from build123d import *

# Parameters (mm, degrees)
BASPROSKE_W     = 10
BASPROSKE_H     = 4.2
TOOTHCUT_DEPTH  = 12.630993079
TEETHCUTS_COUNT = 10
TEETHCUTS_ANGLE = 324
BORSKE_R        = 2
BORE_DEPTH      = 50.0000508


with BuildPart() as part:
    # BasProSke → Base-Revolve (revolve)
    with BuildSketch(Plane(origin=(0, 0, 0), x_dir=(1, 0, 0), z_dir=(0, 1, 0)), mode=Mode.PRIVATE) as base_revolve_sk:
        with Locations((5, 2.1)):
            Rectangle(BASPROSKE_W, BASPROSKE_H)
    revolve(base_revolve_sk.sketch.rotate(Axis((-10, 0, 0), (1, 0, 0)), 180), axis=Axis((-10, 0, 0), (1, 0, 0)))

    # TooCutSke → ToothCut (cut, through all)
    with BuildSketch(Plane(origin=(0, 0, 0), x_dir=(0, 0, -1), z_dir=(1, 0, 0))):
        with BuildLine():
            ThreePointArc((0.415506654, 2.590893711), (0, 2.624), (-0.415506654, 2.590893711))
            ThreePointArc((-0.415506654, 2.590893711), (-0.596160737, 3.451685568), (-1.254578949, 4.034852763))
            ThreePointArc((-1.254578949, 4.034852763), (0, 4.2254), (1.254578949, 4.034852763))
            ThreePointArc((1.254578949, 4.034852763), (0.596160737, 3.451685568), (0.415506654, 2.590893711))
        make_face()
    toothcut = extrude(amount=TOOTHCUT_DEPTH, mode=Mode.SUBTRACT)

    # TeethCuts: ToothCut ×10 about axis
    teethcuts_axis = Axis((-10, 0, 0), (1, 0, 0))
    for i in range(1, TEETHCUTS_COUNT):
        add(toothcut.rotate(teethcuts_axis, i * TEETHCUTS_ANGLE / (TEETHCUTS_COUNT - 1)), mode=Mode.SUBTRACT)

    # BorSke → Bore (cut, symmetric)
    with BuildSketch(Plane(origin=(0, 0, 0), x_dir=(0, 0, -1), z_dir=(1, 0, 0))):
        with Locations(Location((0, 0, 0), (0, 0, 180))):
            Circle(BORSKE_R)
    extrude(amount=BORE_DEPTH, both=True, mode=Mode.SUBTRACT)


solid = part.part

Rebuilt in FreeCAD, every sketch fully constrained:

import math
import FreeCAD as App
import Part
import Sketcher
from FreeCAD import Vector
Q = App.Units.Quantity


def add_polygon(sketch, points):
    """Adds a closed chain of lines whose ends are joined by coincident constraints."""
    first, n = sketch.GeometryCount, len(points)
    for a, b in zip(points, points[1:] + points[:1]):
        sketch.addGeometry(Part.LineSegment(App.Vector(*a, 0), App.Vector(*b, 0)), False)
    for i in range(n):
        sketch.addConstraint(Sketcher.Constraint("Coincident", first + i, 2, first + (i + 1) % n, 1))

doc = App.newDocument("Part")
body = doc.addObject("PartDesign::Body", "Body")

sketch1 = body.newObject("Sketcher::SketchObject", "Sketch")
sketch1.AttachmentSupport = (doc.getObject("XZ_Plane"), [""])
sketch1.MapMode = "FlatFace"
add_polygon(sketch1, [(0, -4.2), (0, 0), (10, 0), (10, -4.2)])
sketch1.addConstraint(Sketcher.Constraint("Vertical", 0))
sketch1.addConstraint(Sketcher.Constraint("Horizontal", 1))
sketch1.addConstraint(Sketcher.Constraint("Vertical", 2))
sketch1.addConstraint(Sketcher.Constraint("Horizontal", 3))
sketch1.addConstraint(Sketcher.Constraint("Coincident", 0, 2, -1, 1))
sketch1.addConstraint(Sketcher.Constraint("DistanceX", 1, 1, 1, 2, Q("10 mm")))
sketch1.addConstraint(Sketcher.Constraint("DistanceY", 0, 1, 0, 2, Q("4.2 mm")))
revolution = body.newObject("PartDesign::Revolution", "Revolution")
revolution.Profile = sketch1
revolution.ReferenceAxis = (sketch1, ["H_Axis"])
revolution.Angle = 360

sketch2 = body.newObject("Sketcher::SketchObject", "Sketch001")
sketch2.AttachmentSupport = (doc.getObject("YZ_Plane"), [""])
sketch2.MapMode = "FlatFace"
sketch2.addGeometry(Part.ArcOfCircle(Part.Circle(Vector(0, 0, 0), Vector(0, 0, 1), 2.6), math.radians(-9.11), math.radians(9.11)), False)
sketch2.addGeometry(Part.ArcOfCircle(Part.Circle(Vector(2.7, -1.8, 0), Vector(0, 0, 1), 1.4), math.radians(23), math.radians(96)), False)
sketch2.addGeometry(Part.ArcOfCircle(Part.Circle(Vector(0, 0, 0), Vector(0, 0, 1), 4.2), math.radians(-17), math.radians(17)), False)
sketch2.addGeometry(Part.ArcOfCircle(Part.Circle(Vector(2.7, 1.8, 0), Vector(0, 0, 1), 1.4), math.radians(-96), math.radians(-23)), False)
sketch2.addConstraint(Sketcher.Constraint("Coincident", 0, 1, 1, 2))
sketch2.addConstraint(Sketcher.Constraint("Coincident", 1, 1, 2, 1))
sketch2.addConstraint(Sketcher.Constraint("Coincident", 2, 2, 3, 2))
sketch2.addConstraint(Sketcher.Constraint("Coincident", 3, 1, 0, 2))
sketch2.addConstraint(Sketcher.Constraint("Coincident", 0, 3, -1, 1))
sketch2.addConstraint(Sketcher.Constraint("Coincident", 2, 3, -1, 1))
sketch2.addConstraint(Sketcher.Constraint("Equal", 1, 3))
sketch2.addConstraint(Sketcher.Constraint("Symmetric", 1, 3, 3, 3, -1))
sketch2.addConstraint(Sketcher.Constraint("Radius", 1, Q("1.4 mm")))
sketch2.addConstraint(Sketcher.Constraint("Radius", 0, Q("2.624 mm")))
sketch2.addConstraint(Sketcher.Constraint("Radius", 2, Q("4.2254 mm")))
sketch2.addConstraint(Sketcher.Constraint("DistanceX", 0, 1, 1, 3, Q("0.157398 mm")))
sketch2.addConstraint(Sketcher.Constraint("DistanceX", -1, 1, 1, 3, Q("2.748292 mm")))
pocket1 = body.newObject("PartDesign::Pocket", "Pocket")
pocket1.Profile = sketch2
pocket1.Type = "ThroughAll"
pocket1.Reversed = True
doc.recompute()

polarpattern = body.newObject("PartDesign::PolarPattern", "PolarPattern")
polarpattern.Originals = [pocket1]
polarpattern.Axis = (doc.getObject("X_Axis"), [""])
polarpattern.Angle = 360
polarpattern.Occurrences = 10
body.Tip = polarpattern

sketch3 = body.newObject("Sketcher::SketchObject", "Sketch002")
sketch3.AttachmentSupport = (doc.getObject("YZ_Plane"), [""])
sketch3.MapMode = "FlatFace"
sketch3.addGeometry(Part.Circle(Vector(0, 0, 0), Vector(0, 0, 1), 2), False)
sketch3.addConstraint(Sketcher.Constraint("Coincident", 0, 3, -1, 1))
sketch3.addConstraint(Sketcher.Constraint("Diameter", 0, Q("4 mm")))
pocket2 = body.newObject("PartDesign::Pocket", "Pocket001")
pocket2.Profile = sketch3
pocket2.Length = 100.000102
pocket2.Midplane = True

doc.recompute()
